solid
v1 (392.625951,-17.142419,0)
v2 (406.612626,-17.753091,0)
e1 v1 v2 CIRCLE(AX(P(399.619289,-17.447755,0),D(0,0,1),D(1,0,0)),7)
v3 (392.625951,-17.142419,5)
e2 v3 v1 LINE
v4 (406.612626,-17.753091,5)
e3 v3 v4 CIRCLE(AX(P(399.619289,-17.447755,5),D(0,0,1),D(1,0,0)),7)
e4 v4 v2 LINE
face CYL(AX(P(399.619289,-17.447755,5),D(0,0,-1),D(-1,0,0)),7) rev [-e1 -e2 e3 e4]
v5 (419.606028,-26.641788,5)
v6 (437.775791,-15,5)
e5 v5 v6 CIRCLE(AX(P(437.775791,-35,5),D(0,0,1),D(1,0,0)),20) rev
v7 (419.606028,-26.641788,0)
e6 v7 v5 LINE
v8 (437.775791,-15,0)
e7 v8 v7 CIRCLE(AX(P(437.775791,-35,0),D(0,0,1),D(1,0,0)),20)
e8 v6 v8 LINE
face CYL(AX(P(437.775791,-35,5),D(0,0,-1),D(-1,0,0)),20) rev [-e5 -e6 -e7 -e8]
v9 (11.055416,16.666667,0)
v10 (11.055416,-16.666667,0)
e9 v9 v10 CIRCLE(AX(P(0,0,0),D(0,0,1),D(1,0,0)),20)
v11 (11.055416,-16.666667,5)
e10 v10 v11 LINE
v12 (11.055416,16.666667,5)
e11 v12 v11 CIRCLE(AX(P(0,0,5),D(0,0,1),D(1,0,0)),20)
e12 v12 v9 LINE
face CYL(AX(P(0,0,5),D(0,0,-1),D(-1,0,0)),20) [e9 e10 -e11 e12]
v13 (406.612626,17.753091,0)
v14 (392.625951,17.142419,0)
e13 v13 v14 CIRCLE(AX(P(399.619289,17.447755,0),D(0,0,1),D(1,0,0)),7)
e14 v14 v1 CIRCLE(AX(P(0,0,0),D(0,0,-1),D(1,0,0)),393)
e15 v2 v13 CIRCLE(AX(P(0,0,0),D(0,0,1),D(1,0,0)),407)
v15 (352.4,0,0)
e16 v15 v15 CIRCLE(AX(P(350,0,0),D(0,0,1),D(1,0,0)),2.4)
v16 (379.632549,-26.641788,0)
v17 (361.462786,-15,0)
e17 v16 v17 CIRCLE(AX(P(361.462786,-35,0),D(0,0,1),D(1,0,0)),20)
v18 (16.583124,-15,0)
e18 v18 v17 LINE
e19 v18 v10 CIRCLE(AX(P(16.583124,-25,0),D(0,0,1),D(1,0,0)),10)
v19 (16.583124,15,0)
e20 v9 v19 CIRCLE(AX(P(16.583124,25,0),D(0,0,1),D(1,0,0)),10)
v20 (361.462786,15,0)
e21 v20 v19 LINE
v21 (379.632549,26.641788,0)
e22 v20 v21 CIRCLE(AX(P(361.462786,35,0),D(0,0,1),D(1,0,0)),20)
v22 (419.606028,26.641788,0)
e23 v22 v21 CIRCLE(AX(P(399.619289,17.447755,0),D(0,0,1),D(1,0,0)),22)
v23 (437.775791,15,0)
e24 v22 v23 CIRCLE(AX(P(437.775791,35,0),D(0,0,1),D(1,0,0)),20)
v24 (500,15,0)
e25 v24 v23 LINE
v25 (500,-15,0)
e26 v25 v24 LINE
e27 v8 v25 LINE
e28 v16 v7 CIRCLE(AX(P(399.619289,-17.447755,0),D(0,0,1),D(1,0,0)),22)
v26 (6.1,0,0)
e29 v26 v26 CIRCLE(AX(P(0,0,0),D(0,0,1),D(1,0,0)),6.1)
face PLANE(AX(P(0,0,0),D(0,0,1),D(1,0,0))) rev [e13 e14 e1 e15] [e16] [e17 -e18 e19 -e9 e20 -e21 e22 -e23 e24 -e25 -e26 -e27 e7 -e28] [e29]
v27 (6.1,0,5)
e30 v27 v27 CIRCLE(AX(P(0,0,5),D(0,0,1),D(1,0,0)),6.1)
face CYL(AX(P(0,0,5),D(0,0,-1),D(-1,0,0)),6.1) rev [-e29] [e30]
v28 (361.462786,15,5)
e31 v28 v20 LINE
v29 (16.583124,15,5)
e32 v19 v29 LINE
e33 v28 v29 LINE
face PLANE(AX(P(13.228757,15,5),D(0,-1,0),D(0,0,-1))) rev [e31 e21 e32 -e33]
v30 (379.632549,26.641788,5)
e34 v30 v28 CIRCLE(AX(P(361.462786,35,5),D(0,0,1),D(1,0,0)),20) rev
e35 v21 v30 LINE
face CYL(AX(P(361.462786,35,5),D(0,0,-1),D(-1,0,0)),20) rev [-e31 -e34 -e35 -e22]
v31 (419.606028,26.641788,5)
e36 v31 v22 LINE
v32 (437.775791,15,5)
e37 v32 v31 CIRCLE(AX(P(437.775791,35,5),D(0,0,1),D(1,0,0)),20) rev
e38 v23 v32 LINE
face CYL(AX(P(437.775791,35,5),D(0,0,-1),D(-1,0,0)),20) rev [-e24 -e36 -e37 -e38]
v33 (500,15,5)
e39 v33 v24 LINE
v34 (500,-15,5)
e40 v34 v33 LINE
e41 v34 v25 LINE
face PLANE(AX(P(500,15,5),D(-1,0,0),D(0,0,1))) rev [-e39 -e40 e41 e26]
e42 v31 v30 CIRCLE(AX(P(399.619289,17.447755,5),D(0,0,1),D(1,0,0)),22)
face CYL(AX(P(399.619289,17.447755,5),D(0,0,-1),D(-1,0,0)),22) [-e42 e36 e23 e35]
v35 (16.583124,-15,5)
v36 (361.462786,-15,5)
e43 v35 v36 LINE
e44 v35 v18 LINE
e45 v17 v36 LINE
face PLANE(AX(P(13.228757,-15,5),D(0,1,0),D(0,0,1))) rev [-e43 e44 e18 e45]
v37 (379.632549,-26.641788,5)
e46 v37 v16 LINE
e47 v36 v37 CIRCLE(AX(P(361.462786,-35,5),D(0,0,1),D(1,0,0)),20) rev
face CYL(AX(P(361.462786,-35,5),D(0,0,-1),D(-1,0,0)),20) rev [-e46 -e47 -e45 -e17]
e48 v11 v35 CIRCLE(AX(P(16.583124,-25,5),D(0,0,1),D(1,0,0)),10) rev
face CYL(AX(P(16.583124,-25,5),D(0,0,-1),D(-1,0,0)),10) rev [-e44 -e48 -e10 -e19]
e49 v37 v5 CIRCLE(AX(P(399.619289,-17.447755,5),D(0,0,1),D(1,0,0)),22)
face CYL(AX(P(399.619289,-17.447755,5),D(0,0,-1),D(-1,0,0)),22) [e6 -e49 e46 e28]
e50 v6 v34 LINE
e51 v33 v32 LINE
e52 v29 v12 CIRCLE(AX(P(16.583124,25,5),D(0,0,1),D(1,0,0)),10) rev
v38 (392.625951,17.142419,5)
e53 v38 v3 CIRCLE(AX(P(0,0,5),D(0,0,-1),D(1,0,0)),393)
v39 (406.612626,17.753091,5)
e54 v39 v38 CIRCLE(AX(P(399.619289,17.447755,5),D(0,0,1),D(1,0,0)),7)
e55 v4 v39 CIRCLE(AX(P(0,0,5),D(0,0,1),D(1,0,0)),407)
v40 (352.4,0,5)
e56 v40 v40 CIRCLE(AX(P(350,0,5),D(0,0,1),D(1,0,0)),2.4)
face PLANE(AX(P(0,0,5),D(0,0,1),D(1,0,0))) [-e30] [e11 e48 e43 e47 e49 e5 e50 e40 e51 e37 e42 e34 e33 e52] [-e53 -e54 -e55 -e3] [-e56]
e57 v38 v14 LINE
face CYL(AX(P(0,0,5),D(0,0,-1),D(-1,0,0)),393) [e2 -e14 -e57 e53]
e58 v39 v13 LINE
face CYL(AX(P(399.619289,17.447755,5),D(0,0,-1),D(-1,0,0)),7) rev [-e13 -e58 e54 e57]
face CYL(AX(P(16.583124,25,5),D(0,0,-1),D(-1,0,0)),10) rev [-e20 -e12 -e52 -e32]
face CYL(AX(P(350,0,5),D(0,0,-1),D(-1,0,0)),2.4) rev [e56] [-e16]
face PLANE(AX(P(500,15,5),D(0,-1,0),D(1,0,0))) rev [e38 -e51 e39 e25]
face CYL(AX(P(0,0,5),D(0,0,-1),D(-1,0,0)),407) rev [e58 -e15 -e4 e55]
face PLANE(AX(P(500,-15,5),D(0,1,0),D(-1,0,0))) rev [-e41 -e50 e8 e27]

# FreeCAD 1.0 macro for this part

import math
import FreeCAD as App
import Part
import Sketcher
from FreeCAD import Vector


def edges_at(feature, points):
    """Names of the edges that pass closest to the given points."""
    edges = feature.Shape.Edges
    near = lambda p: min(range(len(edges)), key=lambda i: edges[i].distToShape(Part.Vertex(*p))[0])
    return sorted({f"Edge{near(p) + 1}" for p in points})

doc = App.newDocument("Part")
params = doc.addObject("Spreadsheet::Sheet", "Params")
for row, (alias, value) in enumerate([
    ("sketch1_radius", "20 mm"),
    ("sketch1_radius2", "22 mm"),
    ("sketch1_radius3", "393 mm"),
    ("sketch1_radius4", "7 mm"),
    ("sketch1_diameter", "4.8 mm"),
    ("pad1_length", "5 mm"),
    ("fillet_radius", "10 mm"),
    ("fillet2_radius", "20 mm"),
], start=1):
    params.set(f"A{row}", alias)
    params.set(f"B{row}", "=" + value)
    params.setAlias(f"B{row}", alias)

body = doc.addObject("PartDesign::Body", "Body")

sketch1 = doc.addObject("Sketcher::SketchObject", "Sketch")
body.addObject(sketch1)
sketch1.AttachmentSupport = (doc.XY_Plane, [""])
sketch1.MapMode = "FlatFace"
sketch1.addGeometry([
    Part.LineSegment(Vector(377.702264, 15, 0), Vector(13.228757, 15, 0)),
    Part.ArcOfCircle(Part.Circle(Vector(0, 0, 0), Vector(0, 0, 1), 20), math.radians(48.590378), math.radians(311.409622)),
    Part.LineSegment(Vector(13.228757, -15, 0), Vector(377.702264, -15, 0)),
    Part.ArcOfCircle(Part.Circle(Vector(-0.000058, 0.000003, 0), Vector(0, 0, 1), 378.000058), math.radians(-2.5), math.radians(-2.274239)),
    Part.ArcOfCircle(Part.Circle(Vector(399.619289, -17.447755, 0), Vector(0, 0, 1), 22), math.radians(177.5), math.radians(357.5)),
    Part.ArcOfCircle(Part.Circle(Vector(0.000005, 0, 0), Vector(0, 0, 1), 421.999995), math.radians(-2.5), math.radians(-2.037009)),
    Part.LineSegment(Vector(421.733328, -15, 0), Vector(500, -15, 0)),
    Part.LineSegment(Vector(500, -15, 0), Vector(500, 15, 0)),
    Part.LineSegment(Vector(500, 15, 0), Vector(421.733328, 15, 0)),
    Part.ArcOfCircle(Part.Circle(Vector(0.000005, 0, 0), Vector(0, 0, 1), 421.999995), math.radians(2.037009), math.radians(2.5)),
    Part.ArcOfCircle(Part.Circle(Vector(399.619289, 17.447755, 0), Vector(0, 0, 1), 22), math.radians(2.5), math.radians(182.5)),
    Part.ArcOfCircle(Part.Circle(Vector(-0.000058, -0.000003, 0), Vector(0, 0, 1), 378.000058), math.radians(2.274239), math.radians(2.5)),
    Part.ArcOfCircle(Part.Circle(Vector(0, 0, 0), Vector(0, 0, 1), 393), math.radians(-2.5), math.radians(2.5)),
    Part.ArcOfCircle(Part.Circle(Vector(399.619289, 17.447755, 0), Vector(0, 0, 1), 7), math.radians(2.5), math.radians(182.5)),
    Part.ArcOfCircle(Part.Circle(Vector(0, 0, 0), Vector(0, 0, 1), 407), math.radians(-2.5), math.radians(2.5)),
    Part.ArcOfCircle(Part.Circle(Vector(399.619289, -17.447755, 0), Vector(0, 0, 1), 7), math.radians(177.5), math.radians(357.5)),
    Part.Circle(Vector(350, 0, 0), Vector(0, 0, 1), 2.4),
    Part.Circle(Vector(0, 0, 0), Vector(0, 0, 1), 6.1),
], False)
sketch1.addConstraint([
    Sketcher.Constraint("Coincident", 0, 2, 1, 1),
    Sketcher.Constraint("Coincident", 1, 2, 2, 1),
    Sketcher.Constraint("Coincident", 2, 2, 3, 2),
    Sketcher.Constraint("Tangent", 3, 1, 4, 1),
    Sketcher.Constraint("Tangent", 4, 2, 5, 1),
    Sketcher.Constraint("Coincident", 5, 2, 6, 1),
    Sketcher.Constraint("Coincident", 6, 2, 7, 1),
    Sketcher.Constraint("Coincident", 7, 2, 8, 1),
    Sketcher.Constraint("Coincident", 8, 2, 9, 1),
    Sketcher.Constraint("Tangent", 9, 2, 10, 1),
    Sketcher.Constraint("Tangent", 10, 2, 11, 2),
    Sketcher.Constraint("Coincident", 11, 1, 0, 1),
    Sketcher.Constraint("Tangent", 12, 2, 13, 2),
    Sketcher.Constraint("Tangent", 13, 1, 14, 2),
    Sketcher.Constraint("Tangent", 14, 1, 15, 2),
    Sketcher.Constraint("Tangent", 15, 1, 12, 1),
    Sketcher.Constraint("Horizontal", 0),
    Sketcher.Constraint("Horizontal", 2),
    Sketcher.Constraint("Horizontal", 6),
    Sketcher.Constraint("Vertical", 7),
    Sketcher.Constraint("Horizontal", 8),
    Sketcher.Constraint("Coincident", 1, 3, -1, 1),
    Sketcher.Constraint("Coincident", 5, 3, -1, 1),
    Sketcher.Constraint("Coincident", 9, 3, -1, 1),
    Sketcher.Constraint("Coincident", 12, 3, -1, 1),
    Sketcher.Constraint("Coincident", 14, 3, -1, 1),
    Sketcher.Constraint("Coincident", 17, 3, -1, 1),
    Sketcher.Constraint("Coincident", 11, 3, 3, 3),
    Sketcher.Constraint("Coincident", 13, 3, 10, 3),
    Sketcher.Constraint("Coincident", 15, 3, 4, 3),
    Sketcher.Constraint("Equal", 5, 9),
    Sketcher.Constraint("Equal", 3, 11),
    Sketcher.Constraint("PointOnObject", 16, 3, -1),
    Sketcher.Constraint("Horizontal", 0, 2, 7, 2),
    Sketcher.Constraint("Vertical", 4, 3, 10, 3),
    Sketcher.Constraint("Vertical", 0, 2, 1, 2),
    Sketcher.Constraint("Equal", 6, 8),
    Sketcher.Constraint("Radius", 1, 20.0),
    Sketcher.Constraint("Radius", 4, 22.0),
    Sketcher.Constraint("Radius", 12, 393.0),
    Sketcher.Constraint("Radius", 13, 7.0),
    Sketcher.Constraint("Diameter", 16, 4.8),
    Sketcher.Constraint("Diameter", 17, 12.2),
    Sketcher.Constraint("DistanceY", 7, 1, 7, 2, 30.0),
    Sketcher.Constraint("DistanceX", -1, 1, 16, 3, 350.0),
    Sketcher.Constraint("DistanceX", -1, 1, 6, 2, 500.0),
    Sketcher.Constraint("Radius", 3, 378.000058),
    Sketcher.Constraint("DistanceX", 13, 1, 8, 2, 15.120702),
])
sketch1.setExpression("Constraints[37]", "Params.sketch1_radius")
sketch1.setExpression("Constraints[38]", "Params.sketch1_radius2")
sketch1.setExpression("Constraints[39]", "Params.sketch1_radius3")
sketch1.setExpression("Constraints[40]", "Params.sketch1_radius4")
sketch1.setExpression("Constraints[41]", "Params.sketch1_diameter")
pad1 = doc.addObject("PartDesign::Pad", "Pad")
body.addObject(pad1)
pad1.Profile = sketch1
pad1.setExpression("Length", "Params.pad1_length")
doc.recompute()

fillet = doc.addObject("PartDesign::Fillet", "Fillet")
body.addObject(fillet)
fillet.Base = (pad1, edges_at(pad1, [(13.229, 15, 2.5), (13.229, -15, 2.5)]))
fillet.setExpression("Radius", "Params.fillet_radius")
doc.recompute()

fillet2 = doc.addObject("PartDesign::Fillet", "Fillet001")
body.addObject(fillet2)
fillet2.Base = (fillet, edges_at(fillet, [
    (421.733, 15, 2.5),
    (421.733, -15, 2.5),
    (377.702, 15, 2.5),
    (377.702, -15, 2.5),
]))
fillet2.setExpression("Radius", "Params.fillet2_radius")

doc.recompute()
